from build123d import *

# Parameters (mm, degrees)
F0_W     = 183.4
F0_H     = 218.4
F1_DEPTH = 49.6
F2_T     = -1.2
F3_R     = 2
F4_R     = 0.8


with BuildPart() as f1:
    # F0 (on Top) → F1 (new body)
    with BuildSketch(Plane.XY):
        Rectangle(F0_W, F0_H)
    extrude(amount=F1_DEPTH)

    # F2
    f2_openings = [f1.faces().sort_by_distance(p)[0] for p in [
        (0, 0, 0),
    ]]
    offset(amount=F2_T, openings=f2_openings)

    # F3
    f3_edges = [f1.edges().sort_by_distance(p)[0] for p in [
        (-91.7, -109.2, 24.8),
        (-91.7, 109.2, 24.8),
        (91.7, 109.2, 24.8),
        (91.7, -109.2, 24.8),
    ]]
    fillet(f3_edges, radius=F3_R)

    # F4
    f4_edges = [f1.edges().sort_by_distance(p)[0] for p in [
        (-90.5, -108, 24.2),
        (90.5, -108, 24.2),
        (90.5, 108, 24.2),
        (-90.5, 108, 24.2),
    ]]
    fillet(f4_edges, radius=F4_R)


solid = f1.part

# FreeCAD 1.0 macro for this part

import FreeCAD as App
import Part
import Sketcher

V = App.Vector
Q = App.Units.Quantity


def edges_at(feature, points):
    """Names of the edges that pass closest to the given points."""
    edges = feature.Shape.Edges
    near = lambda p: min(range(len(edges)), key=lambda i: edges[i].distToShape(Part.Vertex(*p))[0])
    return sorted({f"Edge{near(p) + 1}" for p in points})


def faces_at(feature, points):
    """Names of the faces that lie closest to the given points."""
    faces = feature.Shape.Faces
    near = lambda p: min(range(len(faces)), key=lambda i: faces[i].distToShape(Part.Vertex(*p))[0])
    return sorted({f"Face{near(p) + 1}" for p in points})

doc = App.newDocument("Part")
body = doc.addObject("PartDesign::Body", "Body")

# Sketch on XY plane
sketch1 = body.newObject("Sketcher::SketchObject", "Sketch")
sketch1.AttachmentSupport = (doc.getObject("XY_Plane"), [""])
sketch1.MapMode = "FlatFace"
sketch1.addGeometry(Part.LineSegment(V(-91.7, 109.2, 0), V(-91.7, -109.2, 0)), False)
sketch1.addGeometry(Part.LineSegment(V(-91.7, -109.2, 0), V(91.7, -109.2, 0)), False)
sketch1.addGeometry(Part.LineSegment(V(91.7, -109.2, 0), V(91.7, 109.2, 0)), False)
sketch1.addGeometry(Part.LineSegment(V(91.7, 109.2, 0), V(-91.7, 109.2, 0)), False)
sketch1.addConstraint(Sketcher.Constraint("Coincident", 0, 2, 1, 1))
sketch1.addConstraint(Sketcher.Constraint("Coincident", 1, 2, 2, 1))
sketch1.addConstraint(Sketcher.Constraint("Coincident", 2, 2, 3, 1))
sketch1.addConstraint(Sketcher.Constraint("Coincident", 3, 2, 0, 1))
sketch1.addConstraint(Sketcher.Constraint("Vertical", 0))
sketch1.addConstraint(Sketcher.Constraint("Horizontal", 1))
sketch1.addConstraint(Sketcher.Constraint("Vertical", 2))
sketch1.addConstraint(Sketcher.Constraint("Horizontal", 3))
sketch1.addConstraint(Sketcher.Constraint("Symmetric", 0, 2, 2, 2, -1, 1))
sketch1.addConstraint(Sketcher.Constraint("DistanceX", 1, 1, 1, 2, Q("183.4 mm")))
sketch1.addConstraint(Sketcher.Constraint("DistanceY", 0, 2, 0, 1, Q("218.4 mm")))
pad1 = body.newObject("PartDesign::Pad", "Pad")
pad1.Profile = sketch1
pad1.Length = 49.6
doc.recompute()

thickness = body.newObject("PartDesign::Thickness", "Thickness")
thickness.Base = (pad1, faces_at(pad1, [(0, 0, 0)]))
thickness.Value = 1.2
thickness.Reversed = True
thickness.Join = "Arc"
doc.recompute()

fillet = body.newObject("PartDesign::Fillet", "Fillet")
fillet.Base = (thickness, edges_at(thickness, [
    (-91.7, -109.2, 24.8),
    (-91.7, 109.2, 24.8),
    (91.7, 109.2, 24.8),
    (91.7, -109.2, 24.8),
]))
fillet.Radius = 2
doc.recompute()

fillet2 = body.newObject("PartDesign::Fillet", "Fillet001")
fillet2.Base = (fillet, edges_at(fillet, [
    (-90.5, -108, 24.2),
    (90.5, -108, 24.2),
    (90.5, 108, 24.2),
    (-90.5, 108, 24.2),
]))
fillet2.Radius = 0.8

doc.recompute()
